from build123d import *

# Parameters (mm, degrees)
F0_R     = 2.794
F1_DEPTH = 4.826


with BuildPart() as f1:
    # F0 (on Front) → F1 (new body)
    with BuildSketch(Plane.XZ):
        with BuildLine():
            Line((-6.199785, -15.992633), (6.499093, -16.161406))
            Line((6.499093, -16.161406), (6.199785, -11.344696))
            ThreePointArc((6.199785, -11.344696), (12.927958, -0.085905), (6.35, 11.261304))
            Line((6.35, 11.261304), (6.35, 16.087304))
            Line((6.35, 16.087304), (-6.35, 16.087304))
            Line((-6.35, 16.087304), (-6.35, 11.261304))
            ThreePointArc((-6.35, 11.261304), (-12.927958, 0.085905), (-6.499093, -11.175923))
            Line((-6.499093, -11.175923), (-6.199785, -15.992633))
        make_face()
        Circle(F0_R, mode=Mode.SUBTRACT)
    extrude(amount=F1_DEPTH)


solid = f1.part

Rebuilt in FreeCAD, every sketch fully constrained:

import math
import FreeCAD as App
import Part
import Sketcher

V = App.Vector
Q = App.Units.Quantity

doc = App.newDocument("Part")
body = doc.addObject("PartDesign::Body", "Body")

sketch1 = doc.addObject("Sketcher::SketchObject", "Sketch")
body.addObject(sketch1)
sketch1.AttachmentSupport = (doc.XZ_Plane, [""])
sketch1.MapMode = "FlatFace"
sketch1.addGeometry([
    Part.LineSegment(V(-6.2, -16, 0), V(6.5, -16.2, 0)),
    Part.LineSegment(V(6.5, -16.2, 0), V(6.2, -11.3, 0)),
    Part.ArcOfCircle(Part.Circle(V(0, 0, 0), V(0, 0, 1), 12.9), math.radians(-61), math.radians(61)),
    Part.LineSegment(V(6.3, 11.3, 0), V(6.3, 16.1, 0)),
    Part.LineSegment(V(6.3, 16.1, 0), V(-6.3, 16.1, 0)),
    Part.LineSegment(V(-6.3, 16.1, 0), V(-6.3, 11.3, 0)),
    Part.ArcOfCircle(Part.Circle(V(0, 0, 0), V(0, 0, 1), 12.9), math.radians(119), math.radians(240)),
    Part.LineSegment(V(-6.5, -11.2, 0), V(-6.2, -16, 0)),
    Part.Circle(V(0, 0, 0), V(0, 0, 1), 2.8),
], False)
sketch1.addConstraint([
    Sketcher.Constraint("Coincident", 0, 2, 1, 1),
    Sketcher.Constraint("Coincident", 1, 2, 2, 1),
    Sketcher.Constraint("Coincident", 2, 2, 3, 1),
    Sketcher.Constraint("Coincident", 3, 2, 4, 1),
    Sketcher.Constraint("Coincident", 4, 2, 5, 1),
    Sketcher.Constraint("Coincident", 5, 2, 6, 1),
    Sketcher.Constraint("Coincident", 6, 2, 7, 1),
    Sketcher.Constraint("Coincident", 7, 2, 0, 1),
    Sketcher.Constraint("Vertical", 3),
    Sketcher.Constraint("Horizontal", 4),
    Sketcher.Constraint("Vertical", 5),
    Sketcher.Constraint("Coincident", 2, 3, -1, 1),
    Sketcher.Constraint("Coincident", 6, 3, -1, 1),
    Sketcher.Constraint("Coincident", 8, 3, -1, 1),
    Sketcher.Constraint("Equal", 2, 6),
    Sketcher.Constraint("Parallel", 1, 7),
    Sketcher.Constraint("Horizontal", 2, 2, 5, 2),
    Sketcher.Constraint("Equal", 1, 7),
    Sketcher.Constraint("Diameter", 8, Q("0.22 in")),
    Sketcher.Constraint("DistanceX", 4, 2, 4, 1, Q("0.5 in")),
    Sketcher.Constraint("Distance", 0, Q("0.5 in")),
    Sketcher.Constraint("DistanceY", 3, 1, 3, 2, Q("0.19 in")),
    Sketcher.Constraint("Distance", 1, Q("0.19 in")),
    Sketcher.Constraint("DistanceY", 1, 2, 2, 2, Q("0.89 in")),
    Sketcher.Constraint("Radius", 2, Q("12.928242 mm")),
    Sketcher.Constraint("DistanceY", 0, 2, 1, 2, Q("4.81671 mm")),
])
pad1 = doc.addObject("PartDesign::Pad", "Pad")
body.addObject(pad1)
pad1.Profile = sketch1
pad1.Length = Q("0.19 in")

doc.recompute()
